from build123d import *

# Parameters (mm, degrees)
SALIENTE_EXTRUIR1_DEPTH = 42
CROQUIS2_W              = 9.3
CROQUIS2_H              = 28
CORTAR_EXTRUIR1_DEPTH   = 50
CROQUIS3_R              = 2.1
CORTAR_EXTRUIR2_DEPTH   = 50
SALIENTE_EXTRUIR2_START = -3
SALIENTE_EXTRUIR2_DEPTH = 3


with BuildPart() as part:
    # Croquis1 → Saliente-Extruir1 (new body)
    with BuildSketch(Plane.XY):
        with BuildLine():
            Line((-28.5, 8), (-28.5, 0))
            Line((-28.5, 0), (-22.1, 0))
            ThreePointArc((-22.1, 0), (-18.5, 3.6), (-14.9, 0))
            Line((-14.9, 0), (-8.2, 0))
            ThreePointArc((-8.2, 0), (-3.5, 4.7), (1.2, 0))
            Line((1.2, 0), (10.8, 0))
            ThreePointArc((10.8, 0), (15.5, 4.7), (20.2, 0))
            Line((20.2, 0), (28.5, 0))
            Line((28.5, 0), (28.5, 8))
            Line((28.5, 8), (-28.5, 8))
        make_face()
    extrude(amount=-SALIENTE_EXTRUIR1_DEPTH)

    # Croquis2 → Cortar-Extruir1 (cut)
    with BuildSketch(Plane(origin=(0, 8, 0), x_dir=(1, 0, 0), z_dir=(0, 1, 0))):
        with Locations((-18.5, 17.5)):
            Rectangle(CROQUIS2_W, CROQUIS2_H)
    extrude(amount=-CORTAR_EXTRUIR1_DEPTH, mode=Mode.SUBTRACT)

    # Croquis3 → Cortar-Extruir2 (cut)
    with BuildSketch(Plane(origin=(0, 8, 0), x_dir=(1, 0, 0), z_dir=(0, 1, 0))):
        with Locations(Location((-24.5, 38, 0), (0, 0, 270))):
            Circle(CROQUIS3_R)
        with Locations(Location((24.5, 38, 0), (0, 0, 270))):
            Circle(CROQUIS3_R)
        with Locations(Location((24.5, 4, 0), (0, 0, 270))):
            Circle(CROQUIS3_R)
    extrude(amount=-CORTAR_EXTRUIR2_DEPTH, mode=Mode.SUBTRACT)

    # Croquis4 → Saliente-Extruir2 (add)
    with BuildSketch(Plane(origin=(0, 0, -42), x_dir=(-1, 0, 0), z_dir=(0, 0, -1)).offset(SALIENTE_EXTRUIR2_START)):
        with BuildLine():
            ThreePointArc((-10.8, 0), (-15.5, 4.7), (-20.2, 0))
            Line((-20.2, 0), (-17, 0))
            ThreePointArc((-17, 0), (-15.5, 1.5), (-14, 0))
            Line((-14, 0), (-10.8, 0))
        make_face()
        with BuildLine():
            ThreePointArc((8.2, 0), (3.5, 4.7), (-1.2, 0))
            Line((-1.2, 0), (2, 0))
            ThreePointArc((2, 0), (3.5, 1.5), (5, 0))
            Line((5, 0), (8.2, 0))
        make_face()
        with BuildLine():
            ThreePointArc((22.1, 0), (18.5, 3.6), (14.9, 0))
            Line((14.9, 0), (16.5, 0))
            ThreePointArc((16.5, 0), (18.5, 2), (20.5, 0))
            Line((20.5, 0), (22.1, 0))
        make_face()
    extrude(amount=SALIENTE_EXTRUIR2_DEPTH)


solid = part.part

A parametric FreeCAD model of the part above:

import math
import FreeCAD as App
import Part
import Sketcher

V = App.Vector

doc = App.newDocument("Part")
body = doc.addObject("PartDesign::Body", "Body")

# Sketch on XY plane
sketch1 = body.newObject("Sketcher::SketchObject", "Sketch")
sketch1.AttachmentSupport = (doc.getObject("XY_Plane"), [""])
sketch1.MapMode = "FlatFace"
sketch1.addGeometry([
    Part.LineSegment(V(-28.5, 8, 0), V(-28.5, 0, 0)),  # 0
    Part.LineSegment(V(-28.5, 0, 0), V(-22.1, 0, 0)),  # 1
    Part.ArcOfCircle(Part.Circle(V(-18.5, 0, 0), V(0, 0, 1), 3.6), math.radians(0), math.radians(180)),  # 2
    Part.LineSegment(V(-14.9, 0, 0), V(-8.2, 0, 0)),  # 3
    Part.ArcOfCircle(Part.Circle(V(-3.5, 0, 0), V(0, 0, 1), 4.7), math.radians(0), math.radians(180)),  # 4
    Part.LineSegment(V(1.2, 0, 0), V(10.8, 0, 0)),  # 5
    Part.ArcOfCircle(Part.Circle(V(15.5, 0, 0), V(0, 0, 1), 4.7), math.radians(0), math.radians(180)),  # 6
    Part.LineSegment(V(20.2, 0, 0), V(28.5, 0, 0)),  # 7
    Part.LineSegment(V(28.5, 0, 0), V(28.5, 8, 0)),  # 8
    Part.LineSegment(V(28.5, 8, 0), V(-28.5, 8, 0)),  # 9
], False)
sketch1.addConstraint([
    Sketcher.Constraint("Coincident", 0, 2, 1, 1),
    Sketcher.Constraint("Coincident", 1, 2, 2, 2),
    Sketcher.Constraint("Coincident", 2, 1, 3, 1),
    Sketcher.Constraint("Coincident", 3, 2, 4, 2),
    Sketcher.Constraint("Coincident", 4, 1, 5, 1),
    Sketcher.Constraint("Coincident", 5, 2, 6, 2),
    Sketcher.Constraint("Coincident", 6, 1, 7, 1),
    Sketcher.Constraint("Coincident", 7, 2, 8, 1),
    Sketcher.Constraint("Coincident", 8, 2, 9, 1),
    Sketcher.Constraint("Coincident", 9, 2, 0, 1),
    Sketcher.Constraint("Vertical", 0),
    Sketcher.Constraint("Horizontal", 1),
    Sketcher.Constraint("Horizontal", 3),
    Sketcher.Constraint("Horizontal", 5),
    Sketcher.Constraint("Horizontal", 7),
    Sketcher.Constraint("Vertical", 8),
    Sketcher.Constraint("Horizontal", 9),
    Sketcher.Constraint("Equal", 4, 6),
    Sketcher.Constraint("Symmetric", 0, 2, 7, 2, -1, 1),
    Sketcher.Constraint("PointOnObject", 2, 3, -1),
    Sketcher.Constraint("PointOnObject", 4, 3, -1),
    Sketcher.Constraint("PointOnObject", 6, 3, -1),
    Sketcher.Constraint("PointOnObject", 0, 2, -1),
    Sketcher.Constraint("PointOnObject", 2, 1, -1),
    Sketcher.Constraint("PointOnObject", 4, 1, -1),
    Sketcher.Constraint("Radius", 2, 3.6),
    Sketcher.Constraint("Radius", 4, 4.7),
    Sketcher.Constraint("DistanceX", 9, 2, 9, 1, 57.0),
    Sketcher.Constraint("DistanceY", 0, 2, 0, 1, 8.0),
    Sketcher.Constraint("DistanceX", 1, 1, 1, 2, 6.4),
    Sketcher.Constraint("DistanceX", 3, 1, 3, 2, 6.7),
    Sketcher.Constraint("DistanceX", 5, 1, 5, 2, 9.6),
])
pad1 = body.newObject("PartDesign::Pad", "Pad")
pad1.Profile = sketch1
pad1.Length = 42
pad1.Reversed = True

# Sketch on XZ plane
sketch2 = body.newObject("Sketcher::SketchObject", "Sketch001")
sketch2.AttachmentSupport = (doc.getObject("XZ_Plane"), [""])
sketch2.MapMode = "FlatFace"
sketch2.AttachmentOffset = App.Placement(V(0, 0, -8), App.Rotation())
sketch2.addGeometry([
    Part.LineSegment(V(-23, -32, 0), V(-23, -4, 0)),
    Part.LineSegment(V(-23, -4, 0), V(-14, -4, 0)),
    Part.LineSegment(V(-14, -4, 0), V(-14, -32, 0)),
    Part.LineSegment(V(-14, -32, 0), V(-23, -32, 0)),
], False)
sketch2.addConstraint([
    Sketcher.Constraint("Coincident", 0, 2, 1, 1),
    Sketcher.Constraint("Coincident", 1, 2, 2, 1),
    Sketcher.Constraint("Coincident", 2, 2, 3, 1),
    Sketcher.Constraint("Coincident", 3, 2, 0, 1),
    Sketcher.Constraint("Vertical", 0),
    Sketcher.Constraint("Horizontal", 1),
    Sketcher.Constraint("Vertical", 2),
    Sketcher.Constraint("Horizontal", 3),
    Sketcher.Constraint("DistanceY", 0, 1, 0, 2, 28.0),
    Sketcher.Constraint("DistanceX", 1, 1, 1, 2, 9.3),
    Sketcher.Constraint("DistanceY", 0, 2, -1, 1, 3.5),
    Sketcher.Constraint("DistanceX", 0, 2, -1, 1, 23.15),
])
pocket1 = body.newObject("PartDesign::Pocket", "Pocket")
pocket1.Profile = sketch2
pocket1.Length = 50
pocket1.Reversed = True

# Sketch on XZ plane
sketch3 = body.newObject("Sketcher::SketchObject", "Sketch002")
sketch3.AttachmentSupport = (doc.getObject("XZ_Plane"), [""])
sketch3.MapMode = "FlatFace"
sketch3.AttachmentOffset = App.Placement(V(0, 0, -8), App.Rotation())
sketch3.addGeometry([
    Part.Circle(V(-24.5, -38, 0), V(0, 0, 1), 2.1),
    Part.Circle(V(24.5, -38, 0), V(0, 0, 1), 2.1),
    Part.Circle(V(24.5, -4, 0), V(0, 0, 1), 2.1),
], False)
sketch3.addConstraint([
    Sketcher.Constraint("Equal", 0, 1),
    Sketcher.Constraint("Equal", 1, 2),
    Sketcher.Constraint("Symmetric", 0, 3, 1, 3, -2),
    Sketcher.Constraint("Vertical", 1, 3, 2, 3),
    Sketcher.Constraint("Diameter", 0, 4.2),
    Sketcher.Constraint("DistanceY", 0, 3, -1, 1, 38.0),
    Sketcher.Constraint("DistanceY", 2, 3, -1, 1, 4.0),
    Sketcher.Constraint("DistanceX", 0, 3, 1, 3, 49.0),
])
pocket2 = body.newObject("PartDesign::Pocket", "Pocket001")
pocket2.Profile = sketch3
pocket2.Length = 50
pocket2.Reversed = True

# Sketch on XY plane
sketch4 = body.newObject("Sketcher::SketchObject", "Sketch003")
sketch4.AttachmentSupport = (doc.getObject("XY_Plane"), [""])
sketch4.MapMode = "FlatFace"
sketch4.AttachmentOffset = App.Placement(V(0, 0, -39), App.Rotation())
sketch4.addGeometry([
    Part.ArcOfCircle(Part.Circle(V(15.5, 0, 0), V(0, 0, 1), 4.7), math.radians(0), math.radians(180)),  # 0
    Part.LineSegment(V(20.2, 0, 0), V(17, 0, 0)),  # 1
    Part.ArcOfCircle(Part.Circle(V(15.5, 0, 0), V(0, 0, 1), 1.5), math.radians(0), math.radians(180)),  # 2
    Part.LineSegment(V(14, 0, 0), V(10.8, 0, 0)),  # 3
    Part.ArcOfCircle(Part.Circle(V(-3.5, 0, 0), V(0, 0, 1), 4.7), math.radians(0), math.radians(180)),  # 4
    Part.LineSegment(V(1.2, 0, 0), V(-2, 0, 0)),  # 5
    Part.ArcOfCircle(Part.Circle(V(-3.5, 0, 0), V(0, 0, 1), 1.5), math.radians(0), math.radians(180)),  # 6
    Part.LineSegment(V(-5, 0, 0), V(-8.2, 0, 0)),  # 7
    Part.ArcOfCircle(Part.Circle(V(-18.5, 0, 0), V(0, 0, 1), 3.6), math.radians(0), math.radians(180)),  # 8
    Part.LineSegment(V(-14.9, 0, 0), V(-16.5, 0, 0)),  # 9
    Part.ArcOfCircle(Part.Circle(V(-18.5, 0, 0), V(0, 0, 1), 2), math.radians(0), math.radians(180)),  # 10
    Part.LineSegment(V(-20.5, 0, 0), V(-22.1, 0, 0)),  # 11
], False)
sketch4.addConstraint([
    Sketcher.Constraint("Coincident", 0, 1, 1, 1),
    Sketcher.Constraint("Coincident", 1, 2, 2, 1),
    Sketcher.Constraint("Coincident", 2, 2, 3, 1),
    Sketcher.Constraint("Coincident", 3, 2, 0, 2),
    Sketcher.Constraint("Coincident", 4, 1, 5, 1),
    Sketcher.Constraint("Coincident", 5, 2, 6, 1),
    Sketcher.Constraint("Coincident", 6, 2, 7, 1),
    Sketcher.Constraint("Coincident", 7, 2, 4, 2),
    Sketcher.Constraint("Coincident", 8, 1, 9, 1),
    Sketcher.Constraint("Coincident", 9, 2, 10, 1),
    Sketcher.Constraint("Coincident", 10, 2, 11, 1),
    Sketcher.Constraint("Coincident", 11, 2, 8, 2),
    Sketcher.Constraint("Horizontal", 1),
    Sketcher.Constraint("Horizontal", 3),
    Sketcher.Constraint("Horizontal", 5),
    Sketcher.Constraint("Horizontal", 7),
    Sketcher.Constraint("Horizontal", 9),
    Sketcher.Constraint("Horizontal", 11),
    Sketcher.Constraint("Coincident", 2, 3, 0, 3),
    Sketcher.Constraint("Coincident", 6, 3, 4, 3),
    Sketcher.Constraint("Coincident", 10, 3, 8, 3),
    Sketcher.Constraint("Equal", 0, 4),
    Sketcher.Constraint("Equal", 2, 6),
    Sketcher.Constraint("PointOnObject", 0, 3, -1),
    Sketcher.Constraint("PointOnObject", 4, 3, -1),
    Sketcher.Constraint("PointOnObject", 8, 3, -1),
    Sketcher.Constraint("PointOnObject", 0, 1, -1),
    Sketcher.Constraint("PointOnObject", 2, 2, -1),
    Sketcher.Constraint("PointOnObject", 4, 1, -1),
    Sketcher.Constraint("PointOnObject", 6, 2, -1),
    Sketcher.Constraint("PointOnObject", 8, 1, -1),
    Sketcher.Constraint("PointOnObject", 10, 2, -1),
    Sketcher.Constraint("Radius", 10, 2.0),
    Sketcher.Constraint("Radius", 0, 4.7),
    Sketcher.Constraint("Radius", 2, 1.5),
    Sketcher.Constraint("Radius", 8, 3.6),
    Sketcher.Constraint("DistanceX", -1, 1, 1, 2, 17.0),
    Sketcher.Constraint("DistanceX", 5, 2, -1, 1, 2.0),
    Sketcher.Constraint("DistanceX", 8, 3, 4, 3, 15.0),
])
pad2 = body.newObject("PartDesign::Pad", "Pad001")
pad2.Profile = sketch4
pad2.Length = 3
pad2.Reversed = True

doc.recompute()
